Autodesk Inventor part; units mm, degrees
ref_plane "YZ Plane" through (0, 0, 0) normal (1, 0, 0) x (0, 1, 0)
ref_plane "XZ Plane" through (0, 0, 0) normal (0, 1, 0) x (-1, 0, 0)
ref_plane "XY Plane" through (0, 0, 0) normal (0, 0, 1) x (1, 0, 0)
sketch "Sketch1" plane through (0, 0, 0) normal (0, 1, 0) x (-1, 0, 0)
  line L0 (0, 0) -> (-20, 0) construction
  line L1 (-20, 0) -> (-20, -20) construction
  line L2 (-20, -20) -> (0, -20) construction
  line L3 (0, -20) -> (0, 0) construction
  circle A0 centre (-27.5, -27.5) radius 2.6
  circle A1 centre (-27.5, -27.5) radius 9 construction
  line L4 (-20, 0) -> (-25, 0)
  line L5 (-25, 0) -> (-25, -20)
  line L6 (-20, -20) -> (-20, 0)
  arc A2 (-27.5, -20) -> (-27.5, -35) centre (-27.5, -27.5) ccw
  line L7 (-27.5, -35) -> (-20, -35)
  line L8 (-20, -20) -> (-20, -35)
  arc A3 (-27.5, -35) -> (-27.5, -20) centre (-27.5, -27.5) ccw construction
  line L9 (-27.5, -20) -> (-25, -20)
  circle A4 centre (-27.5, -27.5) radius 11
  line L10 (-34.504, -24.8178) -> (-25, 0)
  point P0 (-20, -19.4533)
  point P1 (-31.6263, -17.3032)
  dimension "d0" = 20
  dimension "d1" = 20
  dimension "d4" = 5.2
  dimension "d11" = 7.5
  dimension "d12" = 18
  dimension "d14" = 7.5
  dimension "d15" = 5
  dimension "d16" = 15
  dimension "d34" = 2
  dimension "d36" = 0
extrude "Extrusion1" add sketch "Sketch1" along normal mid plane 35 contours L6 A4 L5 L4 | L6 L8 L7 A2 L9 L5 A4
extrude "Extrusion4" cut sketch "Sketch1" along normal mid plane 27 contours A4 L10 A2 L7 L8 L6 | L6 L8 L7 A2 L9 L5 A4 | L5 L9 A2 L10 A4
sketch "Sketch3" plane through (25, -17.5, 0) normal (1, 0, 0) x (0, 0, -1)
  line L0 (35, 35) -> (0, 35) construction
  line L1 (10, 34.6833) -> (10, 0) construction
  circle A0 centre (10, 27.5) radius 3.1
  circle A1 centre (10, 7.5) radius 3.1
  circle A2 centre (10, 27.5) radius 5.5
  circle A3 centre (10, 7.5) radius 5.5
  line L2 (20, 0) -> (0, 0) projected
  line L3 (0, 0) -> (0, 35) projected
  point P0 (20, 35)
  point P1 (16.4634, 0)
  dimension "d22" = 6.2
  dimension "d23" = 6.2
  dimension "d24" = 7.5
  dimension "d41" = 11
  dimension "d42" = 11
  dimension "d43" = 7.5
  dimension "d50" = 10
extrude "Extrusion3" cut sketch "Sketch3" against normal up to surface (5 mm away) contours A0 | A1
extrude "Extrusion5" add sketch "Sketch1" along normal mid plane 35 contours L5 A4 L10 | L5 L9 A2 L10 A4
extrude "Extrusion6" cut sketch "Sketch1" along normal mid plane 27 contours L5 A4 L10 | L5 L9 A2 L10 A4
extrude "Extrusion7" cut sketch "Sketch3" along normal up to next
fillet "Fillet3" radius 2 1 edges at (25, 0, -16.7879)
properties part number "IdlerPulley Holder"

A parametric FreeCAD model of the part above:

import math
import FreeCAD as App
import Part
import Sketcher
Q = App.Units.Quantity


def edges_at(feature, points):
    """Names of the edges that pass closest to the given points."""
    edges = feature.Shape.Edges
    near = lambda p: min(range(len(edges)), key=lambda i: edges[i].distToShape(Part.Vertex(*p))[0])
    return sorted({f"Edge{near(p) + 1}" for p in points})

doc = App.newDocument("Part")
params = doc.addObject("Spreadsheet::Sheet", "Params")
for row, (alias, value) in enumerate([
    ("sketch1_diameter", "5.2 mm"),
    ("sketch1_radius", "7.5 mm"),
    ("sketch1_width", "5 mm"),
    ("sketch1_height", "20 mm"),
    ("sketch1_width2", "7.5 mm"),
    ("pad1_length", "35 mm"),
    ("sketch2_diameter", "5.2 mm"),
    ("sketch2_diameter2", "22 mm"),
    ("pocket1_length", "27 mm"),
    ("sketch3_diameter", "6.2 mm"),
    ("pocket2_length", "5 mm"),
    ("sketch4_radius", "7.5 mm"),
    ("sketch4_height", "20 mm"),
    ("sketch4_width", "2.5 mm"),
    ("pad2_length", "35 mm"),
    ("sketch5_radius", "7.5 mm"),
    ("sketch5_height", "20 mm"),
    ("sketch5_width", "2.5 mm"),
    ("pocket3_length", "27 mm"),
    ("sketch6_diameter", "11 mm"),
    ("sketch6_diameter2", "6.2 mm"),
    ("pocket4_length", "5.4542 mm"),
    ("fillet_radius", "2 mm"),
], start=1):
    params.set(f"A{row}", alias)
    params.set(f"B{row}", "=" + value)
    params.setAlias(f"B{row}", alias)

body = doc.addObject("PartDesign::Body", "Body")

# Sketch on XZ plane
sketch1 = body.newObject("Sketcher::SketchObject", "Sketch")
sketch1.AttachmentSupport = (doc.getObject("XZ_Plane"), [""])
sketch1.MapMode = "FlatFace"
sketch1.addGeometry([
    Part.LineSegment(App.Vector(20, 0, 0), App.Vector(25, 0, 0)),  # 0
    Part.LineSegment(App.Vector(25, 0, 0), App.Vector(25, -20, 0)),  # 1
    Part.LineSegment(App.Vector(25, -20, 0), App.Vector(27.5, -20, 0)),  # 2
    Part.ArcOfCircle(Part.Circle(App.Vector(27.5, -27.5, 0), App.Vector(0, 0, 1), 7.5), math.radians(-90), math.radians(90)),  # 3
    Part.LineSegment(App.Vector(27.5, -35, 0), App.Vector(20, -35, 0)),  # 4
    Part.LineSegment(App.Vector(20, -35, 0), App.Vector(20, 0, 0)),  # 5
    Part.Circle(App.Vector(27.5, -27.5, 0), App.Vector(0, 0, 1), 2.6),  # 6
], False)
sketch1.addConstraint([
    Sketcher.Constraint("Coincident", 0, 2, 1, 1),
    Sketcher.Constraint("Coincident", 1, 2, 2, 1),
    Sketcher.Constraint("Tangent", 2, 2, 3, 2),
    Sketcher.Constraint("Tangent", 3, 1, 4, 1),
    Sketcher.Constraint("Coincident", 4, 2, 5, 1),
    Sketcher.Constraint("Coincident", 5, 2, 0, 1),
    Sketcher.Constraint("Horizontal", 0),
    Sketcher.Constraint("Vertical", 1),
    Sketcher.Constraint("Horizontal", 2),
    Sketcher.Constraint("Horizontal", 4),
    Sketcher.Constraint("Vertical", 5),
    Sketcher.Constraint("Coincident", 6, 3, 3, 3),
    Sketcher.Constraint("PointOnObject", 0, 2, -1),
    Sketcher.Constraint("Diameter", 6, Q("5.2 mm")),
    Sketcher.Constraint("Radius", 3, Q("7.5 mm")),
    Sketcher.Constraint("DistanceX", 0, 1, 0, 2, Q("5 mm")),
    Sketcher.Constraint("DistanceY", 1, 2, 1, 1, Q("20 mm")),
    Sketcher.Constraint("DistanceX", 4, 2, 4, 1, Q("7.5 mm")),
    Sketcher.Constraint("DistanceX", -1, 1, 4, 2, Q("20 mm")),
])
sketch1.setExpression("Constraints[13]", "Params.sketch1_diameter")
sketch1.setExpression("Constraints[14]", "Params.sketch1_radius")
sketch1.setExpression("Constraints[15]", "Params.sketch1_width")
sketch1.setExpression("Constraints[16]", "Params.sketch1_height")
sketch1.setExpression("Constraints[17]", "Params.sketch1_width2")
pad1 = body.newObject("PartDesign::Pad", "Pad")
pad1.Profile = sketch1
pad1.setExpression("Length", "Params.pad1_length")
pad1.Midplane = True

# Sketch on XZ plane
sketch2 = body.newObject("Sketcher::SketchObject", "Sketch001")
sketch2.AttachmentSupport = (doc.getObject("XZ_Plane"), [""])
sketch2.MapMode = "FlatFace"
sketch2.addGeometry([
    Part.Circle(App.Vector(27.5, -27.5, 0), App.Vector(0, 0, 1), 11),
    Part.Circle(App.Vector(27.5, -27.5, 0), App.Vector(0, 0, 1), 2.6),
], False)
sketch2.addConstraint([
    Sketcher.Constraint("Coincident", 1, 3, 0, 3),
    Sketcher.Constraint("Diameter", 1, Q("5.2 mm")),
    Sketcher.Constraint("Diameter", 0, Q("22 mm")),
    Sketcher.Constraint("DistanceX", -1, 1, 0, 3, Q("27.5 mm")),
    Sketcher.Constraint("DistanceY", 0, 3, -1, 1, Q("27.5 mm")),
])
sketch2.setExpression("Constraints[1]", "Params.sketch2_diameter")
sketch2.setExpression("Constraints[2]", "Params.sketch2_diameter2")
pocket1 = body.newObject("PartDesign::Pocket", "Pocket")
pocket1.Profile = sketch2
pocket1.setExpression("Length", "Params.pocket1_length")
pocket1.Midplane = True

# Sketch on YZ plane
sketch3 = body.newObject("Sketcher::SketchObject", "Sketch002")
sketch3.AttachmentSupport = (doc.getObject("YZ_Plane"), [""])
sketch3.MapMode = "FlatFace"
sketch3.AttachmentOffset = App.Placement(App.Vector(0, 0, 25), App.Rotation())
sketch3.addGeometry([
    Part.Circle(App.Vector(10, -10, 0), App.Vector(0, 0, 1), 3.1),
    Part.Circle(App.Vector(-10, -10, 0), App.Vector(0, 0, 1), 3.1),
], False)
sketch3.addConstraint([
    Sketcher.Constraint("Equal", 0, 1),
    Sketcher.Constraint("Symmetric", 0, 3, 1, 3, -2),
    Sketcher.Constraint("Diameter", 0, Q("6.2 mm")),
    Sketcher.Constraint("DistanceX", -1, 1, 0, 3, Q("10 mm")),
    Sketcher.Constraint("DistanceY", 0, 3, -1, 1, Q("10 mm")),
])
sketch3.setExpression("Constraints[2]", "Params.sketch3_diameter")
pocket2 = body.newObject("PartDesign::Pocket", "Pocket001")
pocket2.Profile = sketch3
pocket2.setExpression("Length", "Params.pocket2_length")

# Sketch on XZ plane
sketch4 = body.newObject("Sketcher::SketchObject", "Sketch003")
sketch4.AttachmentSupport = (doc.getObject("XZ_Plane"), [""])
sketch4.MapMode = "FlatFace"
sketch4.addGeometry([
    Part.LineSegment(App.Vector(25, 0, 0), App.Vector(34.5, -24.8, 0)),
    Part.ArcOfCircle(Part.Circle(App.Vector(27.5, -27.5, 0), App.Vector(0, 0, 1), 7.5), math.radians(21), math.radians(90)),
    Part.LineSegment(App.Vector(27.5, -20, 0), App.Vector(25, -20, 0)),
    Part.LineSegment(App.Vector(25, -20, 0), App.Vector(25, 0, 0)),
], False)
sketch4.addConstraint([
    Sketcher.Constraint("Tangent", 0, 2, 1, 1),
    Sketcher.Constraint("Tangent", 1, 2, 2, 1),
    Sketcher.Constraint("Coincident", 2, 2, 3, 1),
    Sketcher.Constraint("Coincident", 3, 2, 0, 1),
    Sketcher.Constraint("Horizontal", 2),
    Sketcher.Constraint("Vertical", 3),
    Sketcher.Constraint("PointOnObject", 3, 2, -1),
    Sketcher.Constraint("Radius", 1, Q("7.5 mm")),
    Sketcher.Constraint("DistanceY", 3, 1, 3, 2, Q("20 mm")),
    Sketcher.Constraint("DistanceX", 2, 2, 2, 1, Q("2.5 mm")),
    Sketcher.Constraint("DistanceX", -1, 1, 2, 2, Q("25 mm")),
])
sketch4.setExpression("Constraints[7]", "Params.sketch4_radius")
sketch4.setExpression("Constraints[8]", "Params.sketch4_height")
sketch4.setExpression("Constraints[9]", "Params.sketch4_width")
pad2 = body.newObject("PartDesign::Pad", "Pad001")
pad2.Profile = sketch4
pad2.setExpression("Length", "Params.pad2_length")
pad2.Midplane = True

# Sketch on XZ plane
sketch5 = body.newObject("Sketcher::SketchObject", "Sketch004")
sketch5.AttachmentSupport = (doc.getObject("XZ_Plane"), [""])
sketch5.MapMode = "FlatFace"
sketch5.addGeometry([
    Part.LineSegment(App.Vector(25, 0, 0), App.Vector(34.5, -24.8, 0)),
    Part.ArcOfCircle(Part.Circle(App.Vector(27.5, -27.5, 0), App.Vector(0, 0, 1), 7.5), math.radians(21), math.radians(90)),
    Part.LineSegment(App.Vector(27.5, -20, 0), App.Vector(25, -20, 0)),
    Part.LineSegment(App.Vector(25, -20, 0), App.Vector(25, 0, 0)),
], False)
sketch5.addConstraint([
    Sketcher.Constraint("Tangent", 0, 2, 1, 1),
    Sketcher.Constraint("Tangent", 1, 2, 2, 1),
    Sketcher.Constraint("Coincident", 2, 2, 3, 1),
    Sketcher.Constraint("Coincident", 3, 2, 0, 1),
    Sketcher.Constraint("Horizontal", 2),
    Sketcher.Constraint("Vertical", 3),
    Sketcher.Constraint("PointOnObject", 3, 2, -1),
    Sketcher.Constraint("Radius", 1, Q("7.5 mm")),
    Sketcher.Constraint("DistanceY", 3, 1, 3, 2, Q("20 mm")),
    Sketcher.Constraint("DistanceX", 2, 2, 2, 1, Q("2.5 mm")),
    Sketcher.Constraint("DistanceX", -1, 1, 2, 2, Q("25 mm")),
])
sketch5.setExpression("Constraints[7]", "Params.sketch5_radius")
sketch5.setExpression("Constraints[8]", "Params.sketch5_height")
sketch5.setExpression("Constraints[9]", "Params.sketch5_width")
pocket3 = body.newObject("PartDesign::Pocket", "Pocket002")
pocket3.Profile = sketch5
pocket3.setExpression("Length", "Params.pocket3_length")
pocket3.Midplane = True

# Sketch on YZ plane
sketch6 = body.newObject("Sketcher::SketchObject", "Sketch005")
sketch6.AttachmentSupport = (doc.getObject("YZ_Plane"), [""])
sketch6.MapMode = "FlatFace"
sketch6.AttachmentOffset = App.Placement(App.Vector(0, 0, 25), App.Rotation())
sketch6.addGeometry([
    Part.Circle(App.Vector(10, -10, 0), App.Vector(0, 0, 1), 5.5),
    Part.Circle(App.Vector(10, -10, 0), App.Vector(0, 0, 1), 3.1),
    Part.Circle(App.Vector(-10, -10, 0), App.Vector(0, 0, 1), 5.5),
    Part.Circle(App.Vector(-10, -10, 0), App.Vector(0, 0, 1), 3.1),
], False)
sketch6.addConstraint([
    Sketcher.Constraint("Coincident", 1, 3, 0, 3),
    Sketcher.Constraint("Coincident", 3, 3, 2, 3),
    Sketcher.Constraint("Equal", 0, 2),
    Sketcher.Constraint("Equal", 1, 3),
    Sketcher.Constraint("Symmetric", 0, 3, 2, 3, -2),
    Sketcher.Constraint("Diameter", 0, Q("11 mm")),
    Sketcher.Constraint("Diameter", 1, Q("6.2 mm")),
    Sketcher.Constraint("DistanceX", -1, 1, 0, 3, Q("10 mm")),
    Sketcher.Constraint("DistanceY", 0, 3, -1, 1, Q("10 mm")),
])
sketch6.setExpression("Constraints[5]", "Params.sketch6_diameter")
sketch6.setExpression("Constraints[6]", "Params.sketch6_diameter2")
pocket4 = body.newObject("PartDesign::Pocket", "Pocket003")
pocket4.Profile = sketch6
pocket4.setExpression("Length", "Params.pocket4_length")
pocket4.Reversed = True
doc.recompute()

fillet = body.newObject("PartDesign::Fillet", "Fillet")
fillet.Base = (pocket4, edges_at(pocket4, [(25, 0, -16.788)]))
fillet.setExpression("Radius", "Params.fillet_radius")

doc.recompute()
